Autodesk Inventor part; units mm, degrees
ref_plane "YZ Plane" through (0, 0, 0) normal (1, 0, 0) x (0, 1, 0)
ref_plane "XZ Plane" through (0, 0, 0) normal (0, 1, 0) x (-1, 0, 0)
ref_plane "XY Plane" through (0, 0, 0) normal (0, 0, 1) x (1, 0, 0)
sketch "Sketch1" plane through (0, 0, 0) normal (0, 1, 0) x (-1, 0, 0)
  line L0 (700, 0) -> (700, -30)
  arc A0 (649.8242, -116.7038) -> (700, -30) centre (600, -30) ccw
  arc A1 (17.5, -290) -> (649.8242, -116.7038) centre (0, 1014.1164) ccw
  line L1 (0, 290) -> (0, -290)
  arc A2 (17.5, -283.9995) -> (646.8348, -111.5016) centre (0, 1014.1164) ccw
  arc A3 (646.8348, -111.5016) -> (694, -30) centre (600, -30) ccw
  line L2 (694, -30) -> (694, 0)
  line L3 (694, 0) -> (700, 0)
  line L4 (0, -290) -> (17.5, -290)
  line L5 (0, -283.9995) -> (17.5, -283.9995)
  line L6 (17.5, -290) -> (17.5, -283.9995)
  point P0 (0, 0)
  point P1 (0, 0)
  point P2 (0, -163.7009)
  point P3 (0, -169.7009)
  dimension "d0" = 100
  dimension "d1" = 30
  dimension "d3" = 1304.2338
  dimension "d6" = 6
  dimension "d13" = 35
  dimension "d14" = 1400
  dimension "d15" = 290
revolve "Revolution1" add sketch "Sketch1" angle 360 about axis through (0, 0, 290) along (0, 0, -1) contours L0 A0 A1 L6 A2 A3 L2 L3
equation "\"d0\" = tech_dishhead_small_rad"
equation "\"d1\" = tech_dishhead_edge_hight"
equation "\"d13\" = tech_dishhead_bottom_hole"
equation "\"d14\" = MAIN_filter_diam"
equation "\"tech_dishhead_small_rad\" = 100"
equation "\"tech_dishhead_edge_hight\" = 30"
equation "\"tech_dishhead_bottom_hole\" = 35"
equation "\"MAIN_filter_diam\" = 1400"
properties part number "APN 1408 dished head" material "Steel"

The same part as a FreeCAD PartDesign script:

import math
import FreeCAD as App
import Part
import Sketcher

doc = App.newDocument("Part")
body = doc.addObject("PartDesign::Body", "Body")

sketch1 = doc.addObject("Sketcher::SketchObject", "Sketch")
body.addObject(sketch1)
sketch1.AttachmentSupport = (doc.XZ_Plane, [""])
sketch1.MapMode = "FlatFace"
sketch1.addGeometry(Part.LineSegment(App.Vector(-700, -30, 0), App.Vector(-700, 0, 0)), False)
sketch1.addGeometry(Part.LineSegment(App.Vector(-700, 0, 0), App.Vector(-694, 0, 0)), False)
sketch1.addGeometry(Part.LineSegment(App.Vector(-694, 0, 0), App.Vector(-694, -30, 0)), False)
sketch1.addGeometry(Part.ArcOfCircle(Part.Circle(App.Vector(-600, -30, 0), App.Vector(0, 0, 1), 94.000049), math.radians(180), math.radians(240.116221)), False)
sketch1.addGeometry(Part.ArcOfCircle(Part.Circle(App.Vector(0, 1014.1164, 0), App.Vector(0, 0, 1), 1298.233854), math.radians(-119.883768), math.radians(-90.772362)), False)
sketch1.addGeometry(Part.LineSegment(App.Vector(-17.5, -283.9995, 0), App.Vector(-17.5, -290, 0)), False)
sketch1.addGeometry(Part.ArcOfCircle(Part.Circle(App.Vector(0, 1014.1164, 0), App.Vector(0, 0, 1), 1304.233811), math.radians(-119.883767), math.radians(-90.768809)), False)
sketch1.addGeometry(Part.ArcOfCircle(Part.Circle(App.Vector(-600, -30, 0), App.Vector(0, 0, 1), 99.999999), math.radians(180), math.radians(240.11624)), False)
sketch1.addConstraint(Sketcher.Constraint("Coincident", 0, 2, 1, 1))
sketch1.addConstraint(Sketcher.Constraint("Coincident", 1, 2, 2, 1))
sketch1.addConstraint(Sketcher.Constraint("Tangent", 2, 2, 3, 1))
sketch1.addConstraint(Sketcher.Constraint("Tangent", 3, 2, 4, 1))
sketch1.addConstraint(Sketcher.Constraint("Coincident", 4, 2, 5, 1))
sketch1.addConstraint(Sketcher.Constraint("Coincident", 5, 2, 6, 2))
sketch1.addConstraint(Sketcher.Constraint("Tangent", 6, 1, 7, 2))
sketch1.addConstraint(Sketcher.Constraint("Tangent", 7, 1, 0, 1))
sketch1.addConstraint(Sketcher.Constraint("Vertical", 0))
sketch1.addConstraint(Sketcher.Constraint("Horizontal", 1))
sketch1.addConstraint(Sketcher.Constraint("Vertical", 2))
sketch1.addConstraint(Sketcher.Constraint("Vertical", 5))
sketch1.addConstraint(Sketcher.Constraint("Coincident", 6, 3, 4, 3))
sketch1.addConstraint(Sketcher.Constraint("Coincident", 7, 3, 3, 3))
sketch1.addConstraint(Sketcher.Constraint("PointOnObject", 4, 3, -2))
sketch1.addConstraint(Sketcher.Constraint("PointOnObject", 0, 2, -1))
sketch1.addConstraint(Sketcher.Constraint("Radius", 7, 100.0))
sketch1.addConstraint(Sketcher.Constraint("DistanceX", 1, 1, 1, 2, 6.0))
sketch1.addConstraint(Sketcher.Constraint("DistanceY", 0, 1, 0, 2, 30.0))
sketch1.addConstraint(Sketcher.Constraint("DistanceY", 5, 2, -1, 1, 290.0))
sketch1.addConstraint(Sketcher.Constraint("Radius", 6, 1304.2338))
sketch1.addConstraint(Sketcher.Constraint("DistanceX", 3, 3, -1, 1, 600.0))
revolution = doc.addObject("PartDesign::Revolution", "Revolution")
body.addObject(revolution)
revolution.Profile = sketch1
revolution.ReferenceAxis = (sketch1, ["V_Axis"])
revolution.Angle = 360

doc.recompute()
